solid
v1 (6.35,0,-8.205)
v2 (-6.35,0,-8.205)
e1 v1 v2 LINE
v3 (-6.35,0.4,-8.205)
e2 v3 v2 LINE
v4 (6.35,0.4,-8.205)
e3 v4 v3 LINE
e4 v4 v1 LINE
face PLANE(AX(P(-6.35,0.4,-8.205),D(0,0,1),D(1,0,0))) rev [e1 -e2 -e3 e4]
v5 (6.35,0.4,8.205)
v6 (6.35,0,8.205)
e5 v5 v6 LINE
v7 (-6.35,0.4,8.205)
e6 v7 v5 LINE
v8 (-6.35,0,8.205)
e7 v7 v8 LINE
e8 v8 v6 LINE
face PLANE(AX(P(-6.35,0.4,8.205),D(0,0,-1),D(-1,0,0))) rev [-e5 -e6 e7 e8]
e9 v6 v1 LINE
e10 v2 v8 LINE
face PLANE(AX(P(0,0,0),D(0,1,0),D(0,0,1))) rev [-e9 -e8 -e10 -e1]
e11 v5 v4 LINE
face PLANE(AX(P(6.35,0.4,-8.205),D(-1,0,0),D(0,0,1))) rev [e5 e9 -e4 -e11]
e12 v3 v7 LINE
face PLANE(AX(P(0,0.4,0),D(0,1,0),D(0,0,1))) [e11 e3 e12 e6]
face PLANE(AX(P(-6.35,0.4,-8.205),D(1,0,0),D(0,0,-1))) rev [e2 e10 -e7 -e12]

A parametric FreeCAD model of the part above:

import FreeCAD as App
import Part
import Sketcher
from FreeCAD import Vector

doc = App.newDocument("Part")
params = doc.addObject("Spreadsheet::Sheet", "Params")
for row, (alias, value) in enumerate([
    ("sketch1_width", "12.7 mm"),
    ("sketch1_height", "16.41 mm"),
    ("pad1_length", "0.4 mm"),
], start=1):
    params.set(f"A{row}", alias)
    params.set(f"B{row}", "=" + value)
    params.setAlias(f"B{row}", alias)

body = doc.addObject("PartDesign::Body", "Body")

sketch1 = doc.addObject("Sketcher::SketchObject", "Sketch")
body.addObject(sketch1)
sketch1.AttachmentSupport = (doc.XZ_Plane, [""])
sketch1.MapMode = "FlatFace"
sketch1.addGeometry(Part.LineSegment(Vector(-6.35, -8.205, 0), Vector(-6.35, 8.205, 0)), False)
sketch1.addGeometry(Part.LineSegment(Vector(-6.35, 8.205, 0), Vector(6.35, 8.205, 0)), False)
sketch1.addGeometry(Part.LineSegment(Vector(6.35, 8.205, 0), Vector(6.35, -8.205, 0)), False)
sketch1.addGeometry(Part.LineSegment(Vector(6.35, -8.205, 0), Vector(-6.35, -8.205, 0)), False)
sketch1.addConstraint(Sketcher.Constraint("Coincident", 0, 2, 1, 1))
sketch1.addConstraint(Sketcher.Constraint("Coincident", 1, 2, 2, 1))
sketch1.addConstraint(Sketcher.Constraint("Coincident", 2, 2, 3, 1))
sketch1.addConstraint(Sketcher.Constraint("Coincident", 3, 2, 0, 1))
sketch1.addConstraint(Sketcher.Constraint("Vertical", 0))
sketch1.addConstraint(Sketcher.Constraint("Horizontal", 1))
sketch1.addConstraint(Sketcher.Constraint("Vertical", 2))
sketch1.addConstraint(Sketcher.Constraint("Horizontal", 3))
sketch1.addConstraint(Sketcher.Constraint("Symmetric", 0, 2, 2, 2, -1, 1))
sketch1.addConstraint(Sketcher.Constraint("DistanceX", 1, 1, 1, 2, 12.7))
sketch1.addConstraint(Sketcher.Constraint("DistanceY", 0, 1, 0, 2, 16.41))
sketch1.setExpression("Constraints[9]", "Params.sketch1_width")
sketch1.setExpression("Constraints[10]", "Params.sketch1_height")
pad1 = doc.addObject("PartDesign::Pad", "Pad")
body.addObject(pad1)
pad1.Profile = sketch1
pad1.setExpression("Length", "Params.pad1_length")
pad1.Reversed = True

doc.recompute()
